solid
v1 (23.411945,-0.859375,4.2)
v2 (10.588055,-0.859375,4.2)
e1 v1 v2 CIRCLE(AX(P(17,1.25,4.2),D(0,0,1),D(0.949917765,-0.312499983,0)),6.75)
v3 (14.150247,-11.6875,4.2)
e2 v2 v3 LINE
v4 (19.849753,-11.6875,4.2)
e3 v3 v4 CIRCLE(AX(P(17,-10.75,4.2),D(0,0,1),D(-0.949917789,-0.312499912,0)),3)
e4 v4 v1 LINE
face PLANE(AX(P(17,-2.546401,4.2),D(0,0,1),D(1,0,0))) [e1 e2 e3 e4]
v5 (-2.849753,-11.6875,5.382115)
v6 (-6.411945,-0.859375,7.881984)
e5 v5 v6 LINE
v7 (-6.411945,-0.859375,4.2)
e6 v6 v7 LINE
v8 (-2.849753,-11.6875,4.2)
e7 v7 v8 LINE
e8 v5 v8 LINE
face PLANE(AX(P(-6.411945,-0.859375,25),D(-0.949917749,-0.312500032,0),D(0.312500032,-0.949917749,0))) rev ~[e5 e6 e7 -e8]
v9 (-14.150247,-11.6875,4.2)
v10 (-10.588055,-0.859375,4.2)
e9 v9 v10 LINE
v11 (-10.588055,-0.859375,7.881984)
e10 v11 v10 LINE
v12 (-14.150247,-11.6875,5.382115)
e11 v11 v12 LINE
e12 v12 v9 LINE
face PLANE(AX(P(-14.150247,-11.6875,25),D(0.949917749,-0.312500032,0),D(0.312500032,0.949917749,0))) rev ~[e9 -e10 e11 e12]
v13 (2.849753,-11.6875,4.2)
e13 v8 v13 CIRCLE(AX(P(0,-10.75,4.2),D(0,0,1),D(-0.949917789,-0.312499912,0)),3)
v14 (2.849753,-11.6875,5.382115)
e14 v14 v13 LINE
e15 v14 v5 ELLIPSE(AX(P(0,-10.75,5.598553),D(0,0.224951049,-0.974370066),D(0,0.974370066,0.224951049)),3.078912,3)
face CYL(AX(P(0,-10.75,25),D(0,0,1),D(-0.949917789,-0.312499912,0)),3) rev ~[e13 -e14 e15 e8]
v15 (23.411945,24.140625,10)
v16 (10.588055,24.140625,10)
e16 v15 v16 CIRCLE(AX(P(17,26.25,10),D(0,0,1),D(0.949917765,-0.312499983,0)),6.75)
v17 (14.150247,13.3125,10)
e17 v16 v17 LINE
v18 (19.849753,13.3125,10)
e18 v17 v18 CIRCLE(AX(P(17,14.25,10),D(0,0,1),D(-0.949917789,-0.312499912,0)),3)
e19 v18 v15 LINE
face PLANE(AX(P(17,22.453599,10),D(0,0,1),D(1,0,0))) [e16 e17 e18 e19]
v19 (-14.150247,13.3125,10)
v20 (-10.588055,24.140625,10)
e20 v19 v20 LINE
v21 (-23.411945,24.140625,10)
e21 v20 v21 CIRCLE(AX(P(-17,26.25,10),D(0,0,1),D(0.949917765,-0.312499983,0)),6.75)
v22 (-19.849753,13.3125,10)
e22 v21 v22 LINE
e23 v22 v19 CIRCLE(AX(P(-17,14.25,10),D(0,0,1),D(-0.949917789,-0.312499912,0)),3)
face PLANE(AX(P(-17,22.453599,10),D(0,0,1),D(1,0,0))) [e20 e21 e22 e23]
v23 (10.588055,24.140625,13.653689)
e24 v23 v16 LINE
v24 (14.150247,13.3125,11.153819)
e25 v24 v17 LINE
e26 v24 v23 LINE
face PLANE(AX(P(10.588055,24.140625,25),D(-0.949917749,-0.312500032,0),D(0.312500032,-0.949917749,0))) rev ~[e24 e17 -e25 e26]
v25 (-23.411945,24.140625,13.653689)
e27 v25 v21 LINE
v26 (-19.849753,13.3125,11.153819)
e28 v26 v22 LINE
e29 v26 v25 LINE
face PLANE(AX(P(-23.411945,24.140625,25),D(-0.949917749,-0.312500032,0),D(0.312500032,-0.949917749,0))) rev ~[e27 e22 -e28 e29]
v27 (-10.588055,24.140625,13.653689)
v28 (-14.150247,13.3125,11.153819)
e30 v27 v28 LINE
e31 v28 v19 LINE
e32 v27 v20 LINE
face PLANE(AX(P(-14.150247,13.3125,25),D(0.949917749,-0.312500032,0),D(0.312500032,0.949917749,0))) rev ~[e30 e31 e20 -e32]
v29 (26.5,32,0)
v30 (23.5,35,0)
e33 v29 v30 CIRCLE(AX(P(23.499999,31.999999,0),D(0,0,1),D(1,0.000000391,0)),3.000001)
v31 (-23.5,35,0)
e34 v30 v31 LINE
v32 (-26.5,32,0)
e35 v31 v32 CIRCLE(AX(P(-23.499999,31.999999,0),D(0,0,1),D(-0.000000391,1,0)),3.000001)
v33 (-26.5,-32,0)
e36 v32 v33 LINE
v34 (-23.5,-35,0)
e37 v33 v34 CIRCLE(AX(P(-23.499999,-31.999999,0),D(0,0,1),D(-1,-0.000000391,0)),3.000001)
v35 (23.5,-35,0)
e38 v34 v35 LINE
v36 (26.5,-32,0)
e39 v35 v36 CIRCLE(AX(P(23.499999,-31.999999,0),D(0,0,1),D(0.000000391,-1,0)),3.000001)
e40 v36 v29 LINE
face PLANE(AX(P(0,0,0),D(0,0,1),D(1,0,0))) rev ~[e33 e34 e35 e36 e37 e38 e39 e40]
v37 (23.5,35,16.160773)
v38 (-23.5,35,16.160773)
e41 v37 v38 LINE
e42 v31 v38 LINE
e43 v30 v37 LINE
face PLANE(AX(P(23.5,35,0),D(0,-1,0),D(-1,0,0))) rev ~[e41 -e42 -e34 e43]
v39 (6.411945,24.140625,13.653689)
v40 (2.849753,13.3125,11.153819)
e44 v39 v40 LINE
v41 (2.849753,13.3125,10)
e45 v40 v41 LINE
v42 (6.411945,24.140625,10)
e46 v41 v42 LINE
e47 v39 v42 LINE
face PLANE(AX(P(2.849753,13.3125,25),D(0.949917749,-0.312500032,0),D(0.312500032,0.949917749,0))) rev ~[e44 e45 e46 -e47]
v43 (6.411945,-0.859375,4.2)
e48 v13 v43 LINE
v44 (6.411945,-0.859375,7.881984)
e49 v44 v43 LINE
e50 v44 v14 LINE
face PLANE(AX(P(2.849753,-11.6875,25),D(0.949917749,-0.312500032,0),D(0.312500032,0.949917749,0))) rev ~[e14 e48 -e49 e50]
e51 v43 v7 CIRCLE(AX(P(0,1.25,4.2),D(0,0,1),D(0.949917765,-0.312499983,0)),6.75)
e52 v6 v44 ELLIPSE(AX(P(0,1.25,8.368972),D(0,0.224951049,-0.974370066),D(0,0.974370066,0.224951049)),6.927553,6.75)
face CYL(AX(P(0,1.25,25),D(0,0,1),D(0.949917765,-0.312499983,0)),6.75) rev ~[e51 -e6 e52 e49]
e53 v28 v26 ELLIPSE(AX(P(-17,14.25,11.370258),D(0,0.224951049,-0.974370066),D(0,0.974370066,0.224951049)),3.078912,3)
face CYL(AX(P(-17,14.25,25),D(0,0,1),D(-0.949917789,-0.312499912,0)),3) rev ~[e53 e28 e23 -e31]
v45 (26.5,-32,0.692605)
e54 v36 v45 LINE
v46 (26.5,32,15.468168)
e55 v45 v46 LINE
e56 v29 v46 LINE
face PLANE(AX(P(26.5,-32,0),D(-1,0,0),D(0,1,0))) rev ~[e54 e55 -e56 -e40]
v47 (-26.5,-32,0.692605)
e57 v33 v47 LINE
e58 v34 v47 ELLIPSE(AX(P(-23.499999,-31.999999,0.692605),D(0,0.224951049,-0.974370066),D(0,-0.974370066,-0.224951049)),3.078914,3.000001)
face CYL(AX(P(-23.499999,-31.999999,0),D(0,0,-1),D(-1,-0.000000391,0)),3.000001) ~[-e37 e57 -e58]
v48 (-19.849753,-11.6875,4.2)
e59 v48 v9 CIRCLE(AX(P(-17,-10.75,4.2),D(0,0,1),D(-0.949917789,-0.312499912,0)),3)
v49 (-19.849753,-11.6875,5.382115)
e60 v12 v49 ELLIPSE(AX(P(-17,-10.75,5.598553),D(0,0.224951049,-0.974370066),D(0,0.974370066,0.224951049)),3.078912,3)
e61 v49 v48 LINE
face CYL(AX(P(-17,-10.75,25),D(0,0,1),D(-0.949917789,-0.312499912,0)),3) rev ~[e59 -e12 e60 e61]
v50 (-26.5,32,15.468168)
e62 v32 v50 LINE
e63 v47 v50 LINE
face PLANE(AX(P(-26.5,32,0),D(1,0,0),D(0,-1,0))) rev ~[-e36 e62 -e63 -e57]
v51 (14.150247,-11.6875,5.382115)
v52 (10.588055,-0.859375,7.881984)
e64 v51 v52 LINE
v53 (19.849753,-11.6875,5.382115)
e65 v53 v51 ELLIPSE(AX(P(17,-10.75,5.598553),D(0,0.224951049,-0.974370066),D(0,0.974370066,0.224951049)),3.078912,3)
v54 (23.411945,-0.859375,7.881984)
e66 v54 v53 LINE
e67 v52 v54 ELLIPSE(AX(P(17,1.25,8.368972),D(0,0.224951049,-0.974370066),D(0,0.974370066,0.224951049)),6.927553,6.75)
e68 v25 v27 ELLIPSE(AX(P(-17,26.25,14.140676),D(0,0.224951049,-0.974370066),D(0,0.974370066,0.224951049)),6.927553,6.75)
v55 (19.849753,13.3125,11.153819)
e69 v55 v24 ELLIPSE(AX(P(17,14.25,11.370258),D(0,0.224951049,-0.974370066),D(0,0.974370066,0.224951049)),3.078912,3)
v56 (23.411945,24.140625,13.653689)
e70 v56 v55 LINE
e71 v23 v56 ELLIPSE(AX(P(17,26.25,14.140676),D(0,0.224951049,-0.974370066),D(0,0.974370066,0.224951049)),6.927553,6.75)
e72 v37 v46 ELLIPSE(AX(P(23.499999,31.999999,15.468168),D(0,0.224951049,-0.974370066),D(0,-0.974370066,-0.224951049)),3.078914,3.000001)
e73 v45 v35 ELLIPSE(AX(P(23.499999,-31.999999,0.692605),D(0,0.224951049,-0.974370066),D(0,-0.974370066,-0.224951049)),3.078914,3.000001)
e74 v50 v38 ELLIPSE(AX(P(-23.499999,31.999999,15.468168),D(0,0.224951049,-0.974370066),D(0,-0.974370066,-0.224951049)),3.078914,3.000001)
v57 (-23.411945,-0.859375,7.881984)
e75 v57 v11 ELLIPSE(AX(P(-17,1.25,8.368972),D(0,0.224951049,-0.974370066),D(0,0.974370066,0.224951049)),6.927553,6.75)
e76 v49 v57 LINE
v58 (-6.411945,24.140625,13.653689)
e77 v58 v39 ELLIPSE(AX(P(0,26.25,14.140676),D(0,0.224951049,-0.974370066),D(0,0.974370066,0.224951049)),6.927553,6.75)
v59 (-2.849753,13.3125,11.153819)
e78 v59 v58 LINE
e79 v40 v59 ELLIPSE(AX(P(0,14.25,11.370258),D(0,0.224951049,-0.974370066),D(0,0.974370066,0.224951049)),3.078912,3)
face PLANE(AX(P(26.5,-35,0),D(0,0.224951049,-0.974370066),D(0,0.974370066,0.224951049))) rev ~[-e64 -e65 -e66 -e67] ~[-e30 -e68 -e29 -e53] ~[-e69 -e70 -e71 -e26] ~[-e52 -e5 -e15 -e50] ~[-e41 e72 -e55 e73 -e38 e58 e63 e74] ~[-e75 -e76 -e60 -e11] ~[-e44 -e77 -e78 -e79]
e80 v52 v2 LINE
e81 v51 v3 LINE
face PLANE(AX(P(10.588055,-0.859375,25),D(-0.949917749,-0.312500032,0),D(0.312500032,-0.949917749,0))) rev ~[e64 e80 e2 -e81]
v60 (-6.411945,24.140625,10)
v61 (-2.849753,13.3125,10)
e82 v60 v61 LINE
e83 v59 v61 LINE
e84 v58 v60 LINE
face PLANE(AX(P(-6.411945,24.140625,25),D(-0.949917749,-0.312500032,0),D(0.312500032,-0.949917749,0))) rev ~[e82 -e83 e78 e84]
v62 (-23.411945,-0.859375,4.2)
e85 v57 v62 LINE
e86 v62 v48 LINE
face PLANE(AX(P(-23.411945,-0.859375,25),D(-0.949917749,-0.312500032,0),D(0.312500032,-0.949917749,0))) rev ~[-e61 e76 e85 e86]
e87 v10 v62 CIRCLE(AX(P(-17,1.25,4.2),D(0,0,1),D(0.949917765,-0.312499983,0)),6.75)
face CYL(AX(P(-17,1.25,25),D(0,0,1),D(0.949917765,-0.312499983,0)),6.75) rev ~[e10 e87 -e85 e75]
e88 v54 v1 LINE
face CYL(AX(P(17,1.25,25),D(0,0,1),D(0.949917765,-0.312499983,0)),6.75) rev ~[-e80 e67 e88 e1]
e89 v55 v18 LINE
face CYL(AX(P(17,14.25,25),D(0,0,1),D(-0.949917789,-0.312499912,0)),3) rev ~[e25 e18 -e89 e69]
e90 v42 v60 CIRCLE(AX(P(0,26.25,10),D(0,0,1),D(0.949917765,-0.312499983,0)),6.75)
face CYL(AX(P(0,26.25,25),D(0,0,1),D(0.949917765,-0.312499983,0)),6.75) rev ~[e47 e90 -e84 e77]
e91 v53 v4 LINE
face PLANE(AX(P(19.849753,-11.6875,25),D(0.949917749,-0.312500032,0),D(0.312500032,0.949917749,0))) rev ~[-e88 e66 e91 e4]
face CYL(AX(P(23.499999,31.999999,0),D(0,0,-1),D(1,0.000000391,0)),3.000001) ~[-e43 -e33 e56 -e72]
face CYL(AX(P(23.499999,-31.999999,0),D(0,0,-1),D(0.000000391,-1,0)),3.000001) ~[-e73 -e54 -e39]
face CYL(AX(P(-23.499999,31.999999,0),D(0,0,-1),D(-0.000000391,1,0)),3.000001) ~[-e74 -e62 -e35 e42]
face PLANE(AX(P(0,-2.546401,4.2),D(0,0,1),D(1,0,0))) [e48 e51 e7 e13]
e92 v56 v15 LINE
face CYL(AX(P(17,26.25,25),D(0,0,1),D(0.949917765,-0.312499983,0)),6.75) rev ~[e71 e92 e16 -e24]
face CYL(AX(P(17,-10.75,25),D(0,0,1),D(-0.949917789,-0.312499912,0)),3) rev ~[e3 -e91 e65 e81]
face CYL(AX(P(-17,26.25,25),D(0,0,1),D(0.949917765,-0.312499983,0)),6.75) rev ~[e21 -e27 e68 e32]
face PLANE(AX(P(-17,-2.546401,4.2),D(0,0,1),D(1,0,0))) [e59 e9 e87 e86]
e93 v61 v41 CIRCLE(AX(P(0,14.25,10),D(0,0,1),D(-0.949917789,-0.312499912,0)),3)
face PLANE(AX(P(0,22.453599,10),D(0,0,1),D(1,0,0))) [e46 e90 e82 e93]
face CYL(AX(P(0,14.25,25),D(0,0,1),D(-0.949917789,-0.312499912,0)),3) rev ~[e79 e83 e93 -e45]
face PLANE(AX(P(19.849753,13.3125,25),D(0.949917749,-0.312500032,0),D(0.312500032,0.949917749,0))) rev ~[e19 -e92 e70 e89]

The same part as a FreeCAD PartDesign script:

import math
import FreeCAD as App
import Part
import Sketcher

V = App.Vector
Q = App.Units.Quantity


def add_polygon(sketch, points):
    """Adds a closed chain of lines whose ends are joined by coincident constraints."""
    first, n = sketch.GeometryCount, len(points)
    for a, b in zip(points, points[1:] + points[:1]):
        sketch.addGeometry(Part.LineSegment(App.Vector(*a, 0), App.Vector(*b, 0)), False)
    for i in range(n):
        sketch.addConstraint(Sketcher.Constraint("Coincident", first + i, 2, first + (i + 1) % n, 1))

doc = App.newDocument("Part")
params = doc.addObject("Spreadsheet::Sheet", "Params")
for row, (alias, value) in enumerate([
    ("sketch1_radius", "3.000001 mm"),
    ("sketch1_width", "47 mm"),
    ("sketch1_height", "64 mm"),
    ("pad1_length", "25 mm"),
    ("sketch2_width", "70 mm"),
    ("sketch2_height", "25 mm"),
    ("sketch3_radius", "3 mm"),
    ("sketch3_radius2", "6.75 mm"),
    ("pocket2_length", "15 mm"),
    ("sketch4_radius", "3 mm"),
    ("sketch4_radius2", "6.75 mm"),
    ("pocket3_length", "20.8 mm"),
], start=1):
    params.set(f"A{row}", alias)
    params.set(f"B{row}", "=" + value)
    params.setAlias(f"B{row}", alias)

body = doc.addObject("PartDesign::Body", "Body")

sketch1 = body.newObject("Sketcher::SketchObject", "Sketch")
sketch1.AttachmentSupport = (doc.getObject("XY_Plane"), [""])
sketch1.MapMode = "FlatFace"
sketch1.addGeometry(Part.LineSegment(V(23.5, 35, 0), V(-23.5, 35, 0)), False)
sketch1.addGeometry(Part.ArcOfCircle(Part.Circle(V(-23.499999, 31.999999, 0), V(0, 0, 1), 3.000001), math.radians(90.000022), math.radians(179.999978)), False)
sketch1.addGeometry(Part.LineSegment(V(-26.5, 32, 0), V(-26.5, -32, 0)), False)
sketch1.addGeometry(Part.ArcOfCircle(Part.Circle(V(-23.499999, -31.999999, 0), V(0, 0, 1), 3.000001), math.radians(-179.999978), math.radians(-90.000022)), False)
sketch1.addGeometry(Part.LineSegment(V(-23.5, -35, 0), V(23.5, -35, 0)), False)
sketch1.addGeometry(Part.ArcOfCircle(Part.Circle(V(23.499999, -31.999999, 0), V(0, 0, 1), 3.000001), math.radians(-89.999978), math.radians(-0.000022)), False)
sketch1.addGeometry(Part.LineSegment(V(26.5, -32, 0), V(26.5, 32, 0)), False)
sketch1.addGeometry(Part.ArcOfCircle(Part.Circle(V(23.499999, 31.999999, 0), V(0, 0, 1), 3.000001), math.radians(0.000022), math.radians(89.999978)), False)
sketch1.addConstraint(Sketcher.Constraint("Tangent", 0, 2, 1, 1))
sketch1.addConstraint(Sketcher.Constraint("Tangent", 1, 2, 2, 1))
sketch1.addConstraint(Sketcher.Constraint("Tangent", 2, 2, 3, 1))
sketch1.addConstraint(Sketcher.Constraint("Tangent", 3, 2, 4, 1))
sketch1.addConstraint(Sketcher.Constraint("Tangent", 4, 2, 5, 1))
sketch1.addConstraint(Sketcher.Constraint("Tangent", 5, 2, 6, 1))
sketch1.addConstraint(Sketcher.Constraint("Tangent", 6, 2, 7, 1))
sketch1.addConstraint(Sketcher.Constraint("Tangent", 7, 2, 0, 1))
sketch1.addConstraint(Sketcher.Constraint("Horizontal", 0))
sketch1.addConstraint(Sketcher.Constraint("Vertical", 2))
sketch1.addConstraint(Sketcher.Constraint("Horizontal", 4))
sketch1.addConstraint(Sketcher.Constraint("Vertical", 6))
sketch1.addConstraint(Sketcher.Constraint("Equal", 1, 3))
sketch1.addConstraint(Sketcher.Constraint("Equal", 3, 5))
sketch1.addConstraint(Sketcher.Constraint("Equal", 5, 7))
sketch1.addConstraint(Sketcher.Constraint("Symmetric", 1, 3, 5, 3, -1, 1))
sketch1.addConstraint(Sketcher.Constraint("Radius", 1, Q("3.000001 mm")))
sketch1.addConstraint(Sketcher.Constraint("DistanceX", 0, 2, 0, 1, Q("47 mm")))
sketch1.addConstraint(Sketcher.Constraint("DistanceY", 2, 2, 2, 1, Q("64 mm")))
sketch1.setExpression("Constraints[16]", "Params.sketch1_radius")
sketch1.setExpression("Constraints[17]", "Params.sketch1_width")
sketch1.setExpression("Constraints[18]", "Params.sketch1_height")
pad1 = body.newObject("PartDesign::Pad", "Pad")
pad1.Profile = sketch1
pad1.setExpression("Length", "Params.pad1_length")

sketch2 = body.newObject("Sketcher::SketchObject", "Sketch001")
sketch2.AttachmentSupport = (doc.getObject("YZ_Plane"), [""])
sketch2.MapMode = "FlatFace"
sketch2.AttachmentOffset = App.Placement(V(0, 0, 26.5), App.Rotation())
add_polygon(sketch2, [(-35, 25), (-35, 0), (35, 16.160773), (35, 25)])
sketch2.addConstraint(Sketcher.Constraint("Vertical", 0))
sketch2.addConstraint(Sketcher.Constraint("Vertical", 2))
sketch2.addConstraint(Sketcher.Constraint("Horizontal", 3))
sketch2.addConstraint(Sketcher.Constraint("PointOnObject", 0, 2, -1))
sketch2.addConstraint(Sketcher.Constraint("DistanceX", 3, 2, 3, 1, Q("70 mm")))
sketch2.addConstraint(Sketcher.Constraint("DistanceY", 0, 2, 0, 1, Q("25 mm")))
sketch2.addConstraint(Sketcher.Constraint("Angle", 1, Q("13 deg")))
sketch2.addConstraint(Sketcher.Constraint("DistanceX", 0, 2, -1, 1, Q("35 mm")))
sketch2.setExpression("Constraints[8]", "Params.sketch2_width")
sketch2.setExpression("Constraints[9]", "Params.sketch2_height")
pocket1 = body.newObject("PartDesign::Pocket", "Pocket")
pocket1.Profile = sketch2
pocket1.Type = "ThroughAll"

sketch3 = body.newObject("Sketcher::SketchObject", "Sketch002")
sketch3.AttachmentSupport = (doc.getObject("XY_Plane"), [""])
sketch3.MapMode = "FlatFace"
sketch3.AttachmentOffset = App.Placement(V(0, 0, 25), App.Rotation())
sketch3.addGeometry(Part.LineSegment(V(2.849753, 13.3125, 0), V(6.411945, 24.140625, 0)), False)
sketch3.addGeometry(Part.ArcOfCircle(Part.Circle(V(0, 26.25, 0), V(0, 0, 1), 6.75), math.radians(-18.209956), math.radians(198.209956)), False)
sketch3.addGeometry(Part.LineSegment(V(-6.411945, 24.140625, 0), V(-2.849753, 13.3125, 0)), False)
sketch3.addGeometry(Part.ArcOfCircle(Part.Circle(V(0, 14.25, 0), V(0, 0, 1), 3), math.radians(-161.790048), math.radians(-18.209952)), False)
sketch3.addGeometry(Part.LineSegment(V(19.849753, 13.3125, 0), V(23.411945, 24.140625, 0)), False)
sketch3.addGeometry(Part.ArcOfCircle(Part.Circle(V(17, 26.25, 0), V(0, 0, 1), 6.75), math.radians(-18.209956), math.radians(198.209956)), False)
sketch3.addGeometry(Part.LineSegment(V(10.588055, 24.140625, 0), V(14.150247, 13.3125, 0)), False)
sketch3.addGeometry(Part.ArcOfCircle(Part.Circle(V(17, 14.25, 0), V(0, 0, 1), 3), math.radians(-161.790048), math.radians(-18.209952)), False)
sketch3.addGeometry(Part.ArcOfCircle(Part.Circle(V(-17, 14.25, 0), V(0, 0, 1), 3), math.radians(-161.790048), math.radians(-18.209952)), False)
sketch3.addGeometry(Part.LineSegment(V(-14.150247, 13.3125, 0), V(-10.588055, 24.140625, 0)), False)
sketch3.addGeometry(Part.ArcOfCircle(Part.Circle(V(-17, 26.25, 0), V(0, 0, 1), 6.75), math.radians(-18.209956), math.radians(198.209956)), False)
sketch3.addGeometry(Part.LineSegment(V(-23.411945, 24.140625, 0), V(-19.849753, 13.3125, 0)), False)
sketch3.addConstraint(Sketcher.Constraint("Tangent", 0, 2, 1, 1))
sketch3.addConstraint(Sketcher.Constraint("Tangent", 1, 2, 2, 1))
sketch3.addConstraint(Sketcher.Constraint("Tangent", 2, 2, 3, 1))
sketch3.addConstraint(Sketcher.Constraint("Tangent", 3, 2, 0, 1))
sketch3.addConstraint(Sketcher.Constraint("Tangent", 4, 2, 5, 1))
sketch3.addConstraint(Sketcher.Constraint("Tangent", 5, 2, 6, 1))
sketch3.addConstraint(Sketcher.Constraint("Tangent", 6, 2, 7, 1))
sketch3.addConstraint(Sketcher.Constraint("Tangent", 7, 2, 4, 1))
sketch3.addConstraint(Sketcher.Constraint("Tangent", 8, 2, 9, 1))
sketch3.addConstraint(Sketcher.Constraint("Tangent", 9, 2, 10, 1))
sketch3.addConstraint(Sketcher.Constraint("Tangent", 10, 2, 11, 1))
sketch3.addConstraint(Sketcher.Constraint("Tangent", 11, 2, 8, 1))
sketch3.addConstraint(Sketcher.Constraint("Equal", 1, 5))
sketch3.addConstraint(Sketcher.Constraint("Equal", 3, 7))
sketch3.addConstraint(Sketcher.Constraint("Equal", 7, 8))
sketch3.addConstraint(Sketcher.Constraint("Equal", 5, 10))
sketch3.addConstraint(Sketcher.Constraint("Symmetric", 7, 3, 8, 3, -2))
sketch3.addConstraint(Sketcher.Constraint("Symmetric", 5, 3, 10, 3, -2))
sketch3.addConstraint(Sketcher.Constraint("Symmetric", 0, 2, 1, 2, -2))
sketch3.addConstraint(Sketcher.Constraint("Parallel", 0, 4))
sketch3.addConstraint(Sketcher.Constraint("Parallel", 2, 6))
sketch3.addConstraint(Sketcher.Constraint("Horizontal", 1, 3, 5, 3))
sketch3.addConstraint(Sketcher.Constraint("Radius", 3, Q("3 mm")))
sketch3.addConstraint(Sketcher.Constraint("Radius", 1, Q("6.75 mm")))
sketch3.addConstraint(Sketcher.Constraint("DistanceX", -1, 1, 5, 3, Q("17 mm")))
sketch3.addConstraint(Sketcher.Constraint("DistanceY", 3, 3, 1, 3, Q("12 mm")))
sketch3.addConstraint(Sketcher.Constraint("DistanceY", -1, 1, 1, 3, Q("26.25 mm")))
sketch3.setExpression("Constraints[22]", "Params.sketch3_radius")
sketch3.setExpression("Constraints[23]", "Params.sketch3_radius2")
pocket2 = body.newObject("PartDesign::Pocket", "Pocket001")
pocket2.Profile = sketch3
pocket2.setExpression("Length", "Params.pocket2_length")

sketch4 = body.newObject("Sketcher::SketchObject", "Sketch003")
sketch4.AttachmentSupport = (doc.getObject("XY_Plane"), [""])
sketch4.MapMode = "FlatFace"
sketch4.AttachmentOffset = App.Placement(V(0, 0, 25), App.Rotation())
sketch4.addGeometry(Part.LineSegment(V(10.588055, -0.859375, 0), V(14.150247, -11.6875, 0)), False)
sketch4.addGeometry(Part.ArcOfCircle(Part.Circle(V(17, -10.75, 0), V(0, 0, 1), 3), math.radians(-161.790048), math.radians(-18.209952)), False)
sketch4.addGeometry(Part.LineSegment(V(19.849753, -11.6875, 0), V(23.411945, -0.859375, 0)), False)
sketch4.addGeometry(Part.ArcOfCircle(Part.Circle(V(17, 1.25, 0), V(0, 0, 1), 6.75), math.radians(-18.209956), math.radians(198.209956)), False)
sketch4.addGeometry(Part.ArcOfCircle(Part.Circle(V(0, -10.75, 0), V(0, 0, 1), 3), math.radians(-161.790048), math.radians(-18.209952)), False)
sketch4.addGeometry(Part.LineSegment(V(2.849753, -11.6875, 0), V(6.411945, -0.859375, 0)), False)
sketch4.addGeometry(Part.ArcOfCircle(Part.Circle(V(0, 1.25, 0), V(0, 0, 1), 6.75), math.radians(-18.209956), math.radians(198.209956)), False)
sketch4.addGeometry(Part.LineSegment(V(-6.411945, -0.859375, 0), V(-2.849753, -11.6875, 0)), False)
sketch4.addGeometry(Part.ArcOfCircle(Part.Circle(V(-17, -10.75, 0), V(0, 0, 1), 3), math.radians(-161.790048), math.radians(-18.209952)), False)
sketch4.addGeometry(Part.LineSegment(V(-14.150247, -11.6875, 0), V(-10.588055, -0.859375, 0)), False)
sketch4.addGeometry(Part.ArcOfCircle(Part.Circle(V(-17, 1.25, 0), V(0, 0, 1), 6.75), math.radians(-18.209956), math.radians(198.209956)), False)
sketch4.addGeometry(Part.LineSegment(V(-23.411945, -0.859375, 0), V(-19.849753, -11.6875, 0)), False)
sketch4.addConstraint(Sketcher.Constraint("Tangent", 0, 2, 1, 1))
sketch4.addConstraint(Sketcher.Constraint("Tangent", 1, 2, 2, 1))
sketch4.addConstraint(Sketcher.Constraint("Tangent", 2, 2, 3, 1))
sketch4.addConstraint(Sketcher.Constraint("Tangent", 3, 2, 0, 1))
sketch4.addConstraint(Sketcher.Constraint("Tangent", 4, 2, 5, 1))
sketch4.addConstraint(Sketcher.Constraint("Tangent", 5, 2, 6, 1))
sketch4.addConstraint(Sketcher.Constraint("Tangent", 6, 2, 7, 1))
sketch4.addConstraint(Sketcher.Constraint("Tangent", 7, 2, 4, 1))
sketch4.addConstraint(Sketcher.Constraint("Tangent", 8, 2, 9, 1))
sketch4.addConstraint(Sketcher.Constraint("Tangent", 9, 2, 10, 1))
sketch4.addConstraint(Sketcher.Constraint("Tangent", 10, 2, 11, 1))
sketch4.addConstraint(Sketcher.Constraint("Tangent", 11, 2, 8, 1))
sketch4.addConstraint(Sketcher.Constraint("Equal", 1, 4))
sketch4.addConstraint(Sketcher.Constraint("Equal", 3, 6))
sketch4.addConstraint(Sketcher.Constraint("Equal", 4, 8))
sketch4.addConstraint(Sketcher.Constraint("Equal", 6, 10))
sketch4.addConstraint(Sketcher.Constraint("Symmetric", 1, 3, 8, 3, -2))
sketch4.addConstraint(Sketcher.Constraint("Symmetric", 3, 3, 10, 3, -2))
sketch4.addConstraint(Sketcher.Constraint("Symmetric", 5, 2, 6, 2, -2))
sketch4.addConstraint(Sketcher.Constraint("Parallel", 2, 5))
sketch4.addConstraint(Sketcher.Constraint("Parallel", 0, 7))
sketch4.addConstraint(Sketcher.Constraint("Horizontal", 1, 3, 4, 3))
sketch4.addConstraint(Sketcher.Constraint("Radius", 1, Q("3 mm")))
sketch4.addConstraint(Sketcher.Constraint("Radius", 3, Q("6.75 mm")))
sketch4.addConstraint(Sketcher.Constraint("DistanceX", -1, 1, 1, 3, Q("17 mm")))
sketch4.addConstraint(Sketcher.Constraint("DistanceY", 1, 3, 3, 3, Q("12 mm")))
sketch4.addConstraint(Sketcher.Constraint("DistanceY", 1, 3, -1, 1, Q("10.75 mm")))
sketch4.setExpression("Constraints[22]", "Params.sketch4_radius")
sketch4.setExpression("Constraints[23]", "Params.sketch4_radius2")
pocket3 = body.newObject("PartDesign::Pocket", "Pocket002")
pocket3.Profile = sketch4
pocket3.setExpression("Length", "Params.pocket3_length")

doc.recompute()
